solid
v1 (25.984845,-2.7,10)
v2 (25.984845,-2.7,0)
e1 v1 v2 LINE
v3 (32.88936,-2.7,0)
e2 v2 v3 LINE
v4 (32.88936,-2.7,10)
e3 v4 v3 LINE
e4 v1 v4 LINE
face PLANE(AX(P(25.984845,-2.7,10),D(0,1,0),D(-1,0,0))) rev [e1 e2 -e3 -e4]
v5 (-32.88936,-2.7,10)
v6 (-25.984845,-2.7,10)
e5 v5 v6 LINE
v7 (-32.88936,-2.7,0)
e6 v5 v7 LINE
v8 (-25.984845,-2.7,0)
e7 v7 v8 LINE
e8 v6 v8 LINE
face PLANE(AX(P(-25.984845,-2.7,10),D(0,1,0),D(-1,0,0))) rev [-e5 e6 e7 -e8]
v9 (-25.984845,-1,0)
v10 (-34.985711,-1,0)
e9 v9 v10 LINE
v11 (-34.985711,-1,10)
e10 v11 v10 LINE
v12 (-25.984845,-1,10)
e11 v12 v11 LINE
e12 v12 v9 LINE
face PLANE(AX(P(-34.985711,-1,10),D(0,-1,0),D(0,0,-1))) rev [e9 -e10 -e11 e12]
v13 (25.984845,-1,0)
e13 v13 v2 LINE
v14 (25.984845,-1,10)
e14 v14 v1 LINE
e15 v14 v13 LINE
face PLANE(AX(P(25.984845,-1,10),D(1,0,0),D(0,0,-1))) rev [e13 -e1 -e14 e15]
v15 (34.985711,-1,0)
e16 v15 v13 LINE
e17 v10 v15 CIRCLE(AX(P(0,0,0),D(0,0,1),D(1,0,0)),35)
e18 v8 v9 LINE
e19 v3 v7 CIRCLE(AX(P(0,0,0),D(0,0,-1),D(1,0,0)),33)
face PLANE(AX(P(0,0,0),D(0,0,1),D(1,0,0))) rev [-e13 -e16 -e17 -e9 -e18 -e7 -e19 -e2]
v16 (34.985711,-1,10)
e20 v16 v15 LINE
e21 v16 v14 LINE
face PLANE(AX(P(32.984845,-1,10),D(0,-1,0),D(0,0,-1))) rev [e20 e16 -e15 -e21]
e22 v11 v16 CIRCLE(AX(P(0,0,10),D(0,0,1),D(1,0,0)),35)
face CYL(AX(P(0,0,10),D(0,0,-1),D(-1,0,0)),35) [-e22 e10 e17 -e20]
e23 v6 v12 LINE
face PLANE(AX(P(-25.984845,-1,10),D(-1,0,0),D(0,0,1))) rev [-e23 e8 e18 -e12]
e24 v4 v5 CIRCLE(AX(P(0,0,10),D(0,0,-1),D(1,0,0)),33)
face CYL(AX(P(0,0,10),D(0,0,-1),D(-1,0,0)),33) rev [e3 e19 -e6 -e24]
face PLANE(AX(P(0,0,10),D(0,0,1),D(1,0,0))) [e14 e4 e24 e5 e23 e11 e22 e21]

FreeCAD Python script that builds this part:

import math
import FreeCAD as App
import Part
import Sketcher

V = App.Vector
Q = App.Units.Quantity

doc = App.newDocument("Part")
body = doc.addObject("PartDesign::Body", "Body")

# Sketch on XY plane
sketch1 = doc.addObject("Sketcher::SketchObject", "Sketch")
body.addObject(sketch1)
sketch1.AttachmentSupport = (doc.XY_Plane, [""])
sketch1.MapMode = "FlatFace"
sketch1.addGeometry(Part.LineSegment(V(-25.984845, -1, 0), V(-34.985711, -1, 0)), False)
sketch1.addGeometry(Part.ArcOfCircle(Part.Circle(V(0, 0, 0), V(0, 0, 1), 35), math.radians(-178.362755), math.radians(-1.637245)), False)
sketch1.addGeometry(Part.LineSegment(V(34.985711, -1, 0), V(25.984845, -1, 0)), False)
sketch1.addGeometry(Part.LineSegment(V(25.984845, -1, 0), V(25.984845, -2.7, 0)), False)
sketch1.addGeometry(Part.LineSegment(V(25.984845, -2.7, 0), V(32.88936, -2.7, 0)), False)
sketch1.addGeometry(Part.ArcOfCircle(Part.Circle(V(0, 0, 0), V(0, 0, 1), 33), math.radians(-175.306917), math.radians(-4.693083)), False)
sketch1.addGeometry(Part.LineSegment(V(-32.88936, -2.7, 0), V(-25.984845, -2.7, 0)), False)
sketch1.addGeometry(Part.LineSegment(V(-25.984845, -2.7, 0), V(-25.984845, -1, 0)), False)
sketch1.addConstraint(Sketcher.Constraint("Coincident", 0, 2, 1, 1))
sketch1.addConstraint(Sketcher.Constraint("Coincident", 1, 2, 2, 1))
sketch1.addConstraint(Sketcher.Constraint("Coincident", 2, 2, 3, 1))
sketch1.addConstraint(Sketcher.Constraint("Coincident", 3, 2, 4, 1))
sketch1.addConstraint(Sketcher.Constraint("Coincident", 4, 2, 5, 2))
sketch1.addConstraint(Sketcher.Constraint("Coincident", 5, 1, 6, 1))
sketch1.addConstraint(Sketcher.Constraint("Coincident", 6, 2, 7, 1))
sketch1.addConstraint(Sketcher.Constraint("Coincident", 7, 2, 0, 1))
sketch1.addConstraint(Sketcher.Constraint("Horizontal", 0))
sketch1.addConstraint(Sketcher.Constraint("Horizontal", 2))
sketch1.addConstraint(Sketcher.Constraint("Vertical", 3))
sketch1.addConstraint(Sketcher.Constraint("Horizontal", 4))
sketch1.addConstraint(Sketcher.Constraint("Horizontal", 6))
sketch1.addConstraint(Sketcher.Constraint("Vertical", 7))
sketch1.addConstraint(Sketcher.Constraint("Coincident", 1, 3, -1, 1))
sketch1.addConstraint(Sketcher.Constraint("Coincident", 5, 3, -1, 1))
sketch1.addConstraint(Sketcher.Constraint("Symmetric", 3, 2, 6, 2, -2))
sketch1.addConstraint(Sketcher.Constraint("Horizontal", 0, 2, 1, 2))
sketch1.addConstraint(Sketcher.Constraint("Radius", 1, Q("35 mm")))
sketch1.addConstraint(Sketcher.Constraint("Radius", 5, Q("33 mm")))
sketch1.addConstraint(Sketcher.Constraint("DistanceY", 3, 2, 3, 1, Q("1.7 mm")))
sketch1.addConstraint(Sketcher.Constraint("DistanceY", 0, 2, -1, 1, Q("1 mm")))
sketch1.addConstraint(Sketcher.Constraint("DistanceX", 0, 2, 0, 1, Q("9.000866 mm")))
pad1 = doc.addObject("PartDesign::Pad", "Pad")
body.addObject(pad1)
pad1.Profile = sketch1
pad1.Length = 10

doc.recompute()
